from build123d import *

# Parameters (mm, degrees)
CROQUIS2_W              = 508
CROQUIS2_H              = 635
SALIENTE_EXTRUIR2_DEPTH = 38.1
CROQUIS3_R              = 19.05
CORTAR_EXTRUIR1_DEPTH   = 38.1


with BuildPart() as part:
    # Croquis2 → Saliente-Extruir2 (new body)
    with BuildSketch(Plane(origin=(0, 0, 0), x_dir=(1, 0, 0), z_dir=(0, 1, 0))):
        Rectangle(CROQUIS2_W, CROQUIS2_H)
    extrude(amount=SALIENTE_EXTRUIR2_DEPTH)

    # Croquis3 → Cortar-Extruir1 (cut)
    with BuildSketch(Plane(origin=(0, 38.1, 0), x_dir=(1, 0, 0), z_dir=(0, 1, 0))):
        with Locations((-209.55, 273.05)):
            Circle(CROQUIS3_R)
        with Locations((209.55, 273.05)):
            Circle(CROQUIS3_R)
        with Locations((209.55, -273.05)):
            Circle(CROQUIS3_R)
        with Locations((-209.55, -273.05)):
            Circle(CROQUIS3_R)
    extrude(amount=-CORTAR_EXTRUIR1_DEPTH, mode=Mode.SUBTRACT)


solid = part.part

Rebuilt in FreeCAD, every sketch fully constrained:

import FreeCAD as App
import Part
import Sketcher
Q = App.Units.Quantity


def add_polygon(sketch, points):
    """Adds a closed chain of lines whose ends are joined by coincident constraints."""
    first, n = sketch.GeometryCount, len(points)
    for a, b in zip(points, points[1:] + points[:1]):
        sketch.addGeometry(Part.LineSegment(App.Vector(*a, 0), App.Vector(*b, 0)), False)
    for i in range(n):
        sketch.addConstraint(Sketcher.Constraint("Coincident", first + i, 2, first + (i + 1) % n, 1))

doc = App.newDocument("Part")
body = doc.addObject("PartDesign::Body", "Body")

# Sketch on XZ plane
sketch1 = doc.addObject("Sketcher::SketchObject", "Sketch")
body.addObject(sketch1)
sketch1.AttachmentSupport = (doc.XZ_Plane, [""])
sketch1.MapMode = "FlatFace"
add_polygon(sketch1, [(-254, -318), (-254, 318), (254, 318), (254, -318)])  # lines 0-3
sketch1.addConstraint(Sketcher.Constraint("Vertical", 0))
sketch1.addConstraint(Sketcher.Constraint("Horizontal", 1))
sketch1.addConstraint(Sketcher.Constraint("Vertical", 2))
sketch1.addConstraint(Sketcher.Constraint("Horizontal", 3))
sketch1.addConstraint(Sketcher.Constraint("Symmetric", 0, 2, 2, 2, -1, 1))
sketch1.addConstraint(Sketcher.Constraint("DistanceX", 1, 1, 1, 2, Q("20 in")))
sketch1.addConstraint(Sketcher.Constraint("DistanceY", 0, 1, 0, 2, Q("25 in")))
pad1 = doc.addObject("PartDesign::Pad", "Pad")
body.addObject(pad1)
pad1.Profile = sketch1
pad1.Length = Q("1.5 in")
pad1.Reversed = True

# Sketch on XZ plane
sketch2 = doc.addObject("Sketcher::SketchObject", "Sketch001")
body.addObject(sketch2)
sketch2.AttachmentSupport = (doc.XZ_Plane, [""])
sketch2.MapMode = "FlatFace"
sketch2.AttachmentOffset = App.Placement(App.Vector(0, 0, -1.5 * 25.4), App.Rotation())
sketch2.addGeometry(Part.Circle(App.Vector(-210, -273, 0), App.Vector(0, 0, 1), 19), False)
sketch2.addGeometry(Part.Circle(App.Vector(210, -273, 0), App.Vector(0, 0, 1), 19), False)
sketch2.addGeometry(Part.Circle(App.Vector(210, 273, 0), App.Vector(0, 0, 1), 19), False)
sketch2.addGeometry(Part.Circle(App.Vector(-210, 273, 0), App.Vector(0, 0, 1), 19), False)
sketch2.addConstraint(Sketcher.Constraint("Equal", 0, 1))
sketch2.addConstraint(Sketcher.Constraint("Equal", 1, 2))
sketch2.addConstraint(Sketcher.Constraint("Equal", 2, 3))
sketch2.addConstraint(Sketcher.Constraint("Symmetric", 0, 3, 2, 3, -1, 1))
sketch2.addConstraint(Sketcher.Constraint("Symmetric", 1, 3, 3, 3, -1, 1))
sketch2.addConstraint(Sketcher.Constraint("Symmetric", 0, 3, 1, 3, -2))
sketch2.addConstraint(Sketcher.Constraint("Diameter", 0, Q("1.5 in")))
sketch2.addConstraint(Sketcher.Constraint("DistanceX", 0, 3, 1, 3, Q("16.5 in")))
sketch2.addConstraint(Sketcher.Constraint("DistanceY", 1, 3, 2, 3, Q("21.5 in")))
pocket1 = doc.addObject("PartDesign::Pocket", "Pocket")
body.addObject(pocket1)
pocket1.Profile = sketch2
pocket1.Length = Q("1.5 in")
pocket1.Reversed = True

doc.recompute()
